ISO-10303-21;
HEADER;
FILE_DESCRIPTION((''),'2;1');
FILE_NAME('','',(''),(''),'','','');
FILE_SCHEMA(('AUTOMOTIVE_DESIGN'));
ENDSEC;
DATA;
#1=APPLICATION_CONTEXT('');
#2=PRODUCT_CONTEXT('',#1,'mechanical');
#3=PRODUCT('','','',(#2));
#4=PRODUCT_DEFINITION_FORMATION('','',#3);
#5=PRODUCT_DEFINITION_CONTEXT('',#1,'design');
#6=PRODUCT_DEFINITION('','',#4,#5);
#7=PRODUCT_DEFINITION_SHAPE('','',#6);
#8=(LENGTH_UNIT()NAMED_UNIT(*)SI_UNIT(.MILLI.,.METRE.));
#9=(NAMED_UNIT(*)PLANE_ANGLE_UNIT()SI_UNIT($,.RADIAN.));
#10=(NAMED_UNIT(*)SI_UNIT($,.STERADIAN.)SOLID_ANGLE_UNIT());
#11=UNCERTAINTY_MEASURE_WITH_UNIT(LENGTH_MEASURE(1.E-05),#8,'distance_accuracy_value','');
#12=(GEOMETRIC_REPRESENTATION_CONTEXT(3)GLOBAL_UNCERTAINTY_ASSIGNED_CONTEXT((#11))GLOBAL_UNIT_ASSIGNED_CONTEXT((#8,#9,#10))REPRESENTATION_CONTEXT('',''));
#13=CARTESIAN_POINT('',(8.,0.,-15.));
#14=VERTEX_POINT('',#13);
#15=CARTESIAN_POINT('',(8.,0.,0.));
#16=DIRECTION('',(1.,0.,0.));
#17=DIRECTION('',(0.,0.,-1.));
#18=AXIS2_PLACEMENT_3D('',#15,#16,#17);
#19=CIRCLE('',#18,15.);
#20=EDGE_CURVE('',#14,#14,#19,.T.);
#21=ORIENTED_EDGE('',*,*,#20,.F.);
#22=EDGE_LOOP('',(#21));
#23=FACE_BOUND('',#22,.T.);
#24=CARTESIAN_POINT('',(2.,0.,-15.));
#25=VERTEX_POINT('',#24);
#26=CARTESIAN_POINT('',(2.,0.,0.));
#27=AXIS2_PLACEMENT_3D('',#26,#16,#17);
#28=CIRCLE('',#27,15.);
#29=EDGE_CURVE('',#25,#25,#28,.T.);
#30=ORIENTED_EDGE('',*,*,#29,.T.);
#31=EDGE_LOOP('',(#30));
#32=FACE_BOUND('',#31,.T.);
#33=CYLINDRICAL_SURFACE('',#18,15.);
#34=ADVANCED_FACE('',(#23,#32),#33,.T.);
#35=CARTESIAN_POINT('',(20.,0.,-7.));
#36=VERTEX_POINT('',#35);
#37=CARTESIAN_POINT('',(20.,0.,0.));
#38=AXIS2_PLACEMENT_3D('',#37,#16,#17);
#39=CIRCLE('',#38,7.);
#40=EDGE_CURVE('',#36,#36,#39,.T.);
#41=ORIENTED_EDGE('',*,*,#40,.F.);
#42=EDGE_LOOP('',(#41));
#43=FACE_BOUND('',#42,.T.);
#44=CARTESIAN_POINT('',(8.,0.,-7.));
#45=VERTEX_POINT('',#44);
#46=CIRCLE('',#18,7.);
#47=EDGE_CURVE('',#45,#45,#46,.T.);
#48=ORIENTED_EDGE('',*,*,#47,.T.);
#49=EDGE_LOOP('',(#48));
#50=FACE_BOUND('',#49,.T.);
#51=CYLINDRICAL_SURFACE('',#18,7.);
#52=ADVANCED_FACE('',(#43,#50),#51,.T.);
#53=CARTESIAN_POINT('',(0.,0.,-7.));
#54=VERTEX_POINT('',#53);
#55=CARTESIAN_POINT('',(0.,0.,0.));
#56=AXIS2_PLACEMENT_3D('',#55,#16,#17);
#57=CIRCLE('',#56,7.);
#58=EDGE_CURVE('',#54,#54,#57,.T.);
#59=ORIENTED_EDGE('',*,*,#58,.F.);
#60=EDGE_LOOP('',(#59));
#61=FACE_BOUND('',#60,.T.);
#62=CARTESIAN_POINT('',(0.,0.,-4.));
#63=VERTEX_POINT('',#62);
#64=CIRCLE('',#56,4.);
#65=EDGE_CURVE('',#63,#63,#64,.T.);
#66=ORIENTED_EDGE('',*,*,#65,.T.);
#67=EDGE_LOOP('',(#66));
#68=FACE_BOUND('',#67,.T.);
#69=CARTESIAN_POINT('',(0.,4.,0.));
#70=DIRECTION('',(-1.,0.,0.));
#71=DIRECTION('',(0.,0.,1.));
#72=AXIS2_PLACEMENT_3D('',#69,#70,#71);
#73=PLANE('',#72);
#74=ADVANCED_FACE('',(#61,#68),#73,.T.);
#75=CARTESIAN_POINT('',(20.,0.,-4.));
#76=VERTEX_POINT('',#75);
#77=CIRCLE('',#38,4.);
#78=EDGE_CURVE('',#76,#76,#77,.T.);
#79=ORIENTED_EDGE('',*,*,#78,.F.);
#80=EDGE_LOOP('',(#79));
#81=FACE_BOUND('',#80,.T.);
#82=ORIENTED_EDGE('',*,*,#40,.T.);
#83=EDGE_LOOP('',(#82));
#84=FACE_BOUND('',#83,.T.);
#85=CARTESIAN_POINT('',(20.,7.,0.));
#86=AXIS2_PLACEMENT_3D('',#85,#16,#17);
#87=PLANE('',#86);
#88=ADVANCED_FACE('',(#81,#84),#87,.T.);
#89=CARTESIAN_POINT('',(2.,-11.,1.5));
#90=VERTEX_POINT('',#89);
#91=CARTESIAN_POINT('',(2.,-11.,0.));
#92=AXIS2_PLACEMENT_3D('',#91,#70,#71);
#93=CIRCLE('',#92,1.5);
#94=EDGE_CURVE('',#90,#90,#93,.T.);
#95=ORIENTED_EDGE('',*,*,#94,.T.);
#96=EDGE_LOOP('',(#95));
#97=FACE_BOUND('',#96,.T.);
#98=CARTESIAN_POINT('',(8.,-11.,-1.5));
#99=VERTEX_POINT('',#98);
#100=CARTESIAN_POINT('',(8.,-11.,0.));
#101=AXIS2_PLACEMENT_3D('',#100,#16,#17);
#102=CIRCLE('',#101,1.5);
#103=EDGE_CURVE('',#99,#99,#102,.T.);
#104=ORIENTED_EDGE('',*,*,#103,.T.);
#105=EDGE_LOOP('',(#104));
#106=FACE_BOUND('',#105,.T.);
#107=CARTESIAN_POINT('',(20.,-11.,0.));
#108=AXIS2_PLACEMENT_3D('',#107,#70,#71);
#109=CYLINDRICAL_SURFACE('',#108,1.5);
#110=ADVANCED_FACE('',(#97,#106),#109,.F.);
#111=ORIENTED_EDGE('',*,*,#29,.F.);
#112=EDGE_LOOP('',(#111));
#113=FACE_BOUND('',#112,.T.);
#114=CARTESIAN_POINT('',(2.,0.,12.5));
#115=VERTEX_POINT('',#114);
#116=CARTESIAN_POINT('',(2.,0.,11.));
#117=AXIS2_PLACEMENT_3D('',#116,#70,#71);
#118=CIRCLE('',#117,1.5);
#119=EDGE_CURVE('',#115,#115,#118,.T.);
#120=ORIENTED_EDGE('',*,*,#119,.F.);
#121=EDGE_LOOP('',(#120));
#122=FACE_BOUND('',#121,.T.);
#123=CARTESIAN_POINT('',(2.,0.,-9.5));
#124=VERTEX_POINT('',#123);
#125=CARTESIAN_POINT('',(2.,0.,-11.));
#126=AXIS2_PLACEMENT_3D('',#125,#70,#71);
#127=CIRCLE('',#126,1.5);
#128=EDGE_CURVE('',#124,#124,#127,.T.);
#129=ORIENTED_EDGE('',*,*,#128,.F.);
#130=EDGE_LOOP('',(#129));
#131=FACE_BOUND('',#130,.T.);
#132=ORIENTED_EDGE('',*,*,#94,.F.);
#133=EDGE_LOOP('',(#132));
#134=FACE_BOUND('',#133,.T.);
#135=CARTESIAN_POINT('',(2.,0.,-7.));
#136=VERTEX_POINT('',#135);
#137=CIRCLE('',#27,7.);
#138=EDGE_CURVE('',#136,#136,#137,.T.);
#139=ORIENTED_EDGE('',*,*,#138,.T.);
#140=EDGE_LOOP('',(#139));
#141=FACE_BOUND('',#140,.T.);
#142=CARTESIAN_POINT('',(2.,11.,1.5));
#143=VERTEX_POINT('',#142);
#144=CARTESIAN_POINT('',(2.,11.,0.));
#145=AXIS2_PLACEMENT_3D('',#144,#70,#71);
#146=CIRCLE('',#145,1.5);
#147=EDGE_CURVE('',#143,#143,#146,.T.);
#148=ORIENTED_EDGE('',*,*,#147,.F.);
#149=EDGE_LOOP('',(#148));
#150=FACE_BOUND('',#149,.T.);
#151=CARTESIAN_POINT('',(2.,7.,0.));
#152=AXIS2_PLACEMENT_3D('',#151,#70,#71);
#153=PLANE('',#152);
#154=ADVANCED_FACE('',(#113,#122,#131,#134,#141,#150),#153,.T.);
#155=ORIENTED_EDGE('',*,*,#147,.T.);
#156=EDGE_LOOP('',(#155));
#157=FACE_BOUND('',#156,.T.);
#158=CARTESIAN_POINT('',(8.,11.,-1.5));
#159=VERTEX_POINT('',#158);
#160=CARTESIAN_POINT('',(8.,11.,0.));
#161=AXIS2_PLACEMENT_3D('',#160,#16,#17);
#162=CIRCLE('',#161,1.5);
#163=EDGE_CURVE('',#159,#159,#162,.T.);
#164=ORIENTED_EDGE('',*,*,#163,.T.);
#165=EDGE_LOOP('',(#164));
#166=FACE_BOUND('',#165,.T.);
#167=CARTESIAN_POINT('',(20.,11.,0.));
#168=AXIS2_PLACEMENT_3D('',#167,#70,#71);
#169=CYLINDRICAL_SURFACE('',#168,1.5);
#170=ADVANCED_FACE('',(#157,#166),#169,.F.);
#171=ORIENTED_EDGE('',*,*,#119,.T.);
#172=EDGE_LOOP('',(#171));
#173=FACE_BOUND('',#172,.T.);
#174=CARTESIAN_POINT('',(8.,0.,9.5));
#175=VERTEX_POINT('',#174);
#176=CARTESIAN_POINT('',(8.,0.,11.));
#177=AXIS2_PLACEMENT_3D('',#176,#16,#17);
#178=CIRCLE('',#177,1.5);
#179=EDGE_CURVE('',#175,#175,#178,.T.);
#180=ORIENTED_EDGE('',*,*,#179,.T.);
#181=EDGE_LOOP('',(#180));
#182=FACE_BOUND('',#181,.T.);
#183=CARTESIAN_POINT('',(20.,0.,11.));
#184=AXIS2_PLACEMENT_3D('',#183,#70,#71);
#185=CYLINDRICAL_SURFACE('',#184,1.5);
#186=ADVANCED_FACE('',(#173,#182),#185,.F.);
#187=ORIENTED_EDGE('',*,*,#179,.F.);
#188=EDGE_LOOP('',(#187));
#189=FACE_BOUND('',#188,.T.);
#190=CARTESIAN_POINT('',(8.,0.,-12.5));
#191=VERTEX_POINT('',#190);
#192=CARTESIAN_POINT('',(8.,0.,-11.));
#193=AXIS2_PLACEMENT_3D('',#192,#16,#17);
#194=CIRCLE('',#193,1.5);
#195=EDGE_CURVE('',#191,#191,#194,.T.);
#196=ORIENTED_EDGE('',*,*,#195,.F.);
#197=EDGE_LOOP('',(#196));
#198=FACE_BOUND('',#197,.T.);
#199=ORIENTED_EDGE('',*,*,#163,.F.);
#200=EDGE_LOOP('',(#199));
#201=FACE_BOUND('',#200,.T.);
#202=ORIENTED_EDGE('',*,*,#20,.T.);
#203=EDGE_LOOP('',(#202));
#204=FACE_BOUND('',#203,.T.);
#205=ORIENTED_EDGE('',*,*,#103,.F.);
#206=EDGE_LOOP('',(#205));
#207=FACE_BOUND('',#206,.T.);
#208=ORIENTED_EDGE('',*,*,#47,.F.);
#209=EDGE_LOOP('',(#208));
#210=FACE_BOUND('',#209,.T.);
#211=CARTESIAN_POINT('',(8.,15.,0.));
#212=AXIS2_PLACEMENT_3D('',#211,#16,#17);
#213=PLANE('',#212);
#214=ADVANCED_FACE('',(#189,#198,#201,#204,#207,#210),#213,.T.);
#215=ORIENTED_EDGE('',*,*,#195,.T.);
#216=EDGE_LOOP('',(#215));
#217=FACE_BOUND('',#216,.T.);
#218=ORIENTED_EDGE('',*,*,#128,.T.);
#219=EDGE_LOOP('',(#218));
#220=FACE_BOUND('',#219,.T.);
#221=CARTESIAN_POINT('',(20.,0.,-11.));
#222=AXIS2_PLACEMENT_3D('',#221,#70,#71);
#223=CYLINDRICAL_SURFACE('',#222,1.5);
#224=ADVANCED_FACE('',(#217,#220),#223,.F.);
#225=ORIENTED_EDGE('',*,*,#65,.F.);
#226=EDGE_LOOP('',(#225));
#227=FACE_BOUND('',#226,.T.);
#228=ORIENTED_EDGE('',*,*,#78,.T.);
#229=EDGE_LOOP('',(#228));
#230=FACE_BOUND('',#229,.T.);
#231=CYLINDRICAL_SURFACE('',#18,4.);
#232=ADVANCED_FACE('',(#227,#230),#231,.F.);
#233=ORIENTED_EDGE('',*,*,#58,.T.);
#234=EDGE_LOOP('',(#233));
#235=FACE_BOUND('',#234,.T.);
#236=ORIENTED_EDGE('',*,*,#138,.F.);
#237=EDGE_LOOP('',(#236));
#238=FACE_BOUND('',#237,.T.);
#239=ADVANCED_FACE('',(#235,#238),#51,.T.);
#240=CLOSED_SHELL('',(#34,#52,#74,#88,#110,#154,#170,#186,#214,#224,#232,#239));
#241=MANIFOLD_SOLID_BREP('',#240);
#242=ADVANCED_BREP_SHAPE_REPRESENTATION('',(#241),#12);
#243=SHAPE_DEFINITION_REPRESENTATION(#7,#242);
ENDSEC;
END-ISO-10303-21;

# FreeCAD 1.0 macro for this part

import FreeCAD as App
import Part
import Sketcher

V = App.Vector
Q = App.Units.Quantity


def add_polygon(sketch, points):
    """Adds a closed chain of lines whose ends are joined by coincident constraints."""
    first, n = sketch.GeometryCount, len(points)
    for a, b in zip(points, points[1:] + points[:1]):
        sketch.addGeometry(Part.LineSegment(App.Vector(*a, 0), App.Vector(*b, 0)), False)
    for i in range(n):
        sketch.addConstraint(Sketcher.Constraint("Coincident", first + i, 2, first + (i + 1) % n, 1))

doc = App.newDocument("Part")
body = doc.addObject("PartDesign::Body", "Body")

# Sketch on XY plane
sketch1 = doc.addObject("Sketcher::SketchObject", "Sketch")
body.addObject(sketch1)
sketch1.AttachmentSupport = (doc.XY_Plane, [""])
sketch1.MapMode = "FlatFace"
add_polygon(sketch1, [(0, 7), (0, 4), (20, 4), (20, 7), (8, 7), (8, 15), (2, 15), (2, 7)])  # lines 0-7
sketch1.addConstraint([
    Sketcher.Constraint("Vertical", 0),
    Sketcher.Constraint("Horizontal", 1),
    Sketcher.Constraint("Vertical", 2),
    Sketcher.Constraint("Horizontal", 3),
    Sketcher.Constraint("Vertical", 4),
    Sketcher.Constraint("Horizontal", 5),
    Sketcher.Constraint("Vertical", 6),
    Sketcher.Constraint("Horizontal", 7),
    Sketcher.Constraint("PointOnObject", 0, 2, -2),
    Sketcher.Constraint("Horizontal", 3, 2, 6, 2),
    Sketcher.Constraint("DistanceX", 1, 1, 1, 2, Q("20 mm")),
    Sketcher.Constraint("DistanceX", 3, 2, 3, 1, Q("12 mm")),
    Sketcher.Constraint("DistanceX", 5, 2, 5, 1, Q("6 mm")),
    Sketcher.Constraint("DistanceY", 0, 2, 0, 1, Q("3 mm")),
    Sketcher.Constraint("DistanceY", 4, 1, 4, 2, Q("8 mm")),
    Sketcher.Constraint("DistanceY", -1, 1, 0, 2, Q("4 mm")),
])
revolution = doc.addObject("PartDesign::Revolution", "Revolution")
body.addObject(revolution)
revolution.Profile = sketch1
revolution.ReferenceAxis = (sketch1, ["H_Axis"])
revolution.Angle = 360

# Sketch on YZ plane
sketch2 = doc.addObject("Sketcher::SketchObject", "Sketch001")
body.addObject(sketch2)
sketch2.AttachmentSupport = (doc.YZ_Plane, [""])
sketch2.MapMode = "FlatFace"
sketch2.AttachmentOffset = App.Placement(V(0, 0, 2), App.Rotation())
sketch2.addGeometry([
    Part.Circle(V(11, 0, 0), V(0, 0, 1), 1.5),
    Part.Circle(V(0, -11, 0), V(0, 0, 1), 1.5),
    Part.Circle(V(-11, 0, 0), V(0, 0, 1), 1.5),
    Part.Circle(V(0, 11, 0), V(0, 0, 1), 1.5),
], False)
sketch2.addConstraint([
    Sketcher.Constraint("Equal", 0, 1),
    Sketcher.Constraint("Equal", 1, 2),
    Sketcher.Constraint("Equal", 2, 3),
    Sketcher.Constraint("Symmetric", 0, 3, 2, 3, -1, 1),
    Sketcher.Constraint("Symmetric", 1, 3, 3, 3, -1, 1),
    Sketcher.Constraint("PointOnObject", 0, 3, -1),
    Sketcher.Constraint("PointOnObject", 1, 3, -2),
    Sketcher.Constraint("Diameter", 0, Q("3 mm")),
    Sketcher.Constraint("DistanceX", -1, 1, 0, 3, Q("11 mm")),
    Sketcher.Constraint("DistanceY", 1, 3, -1, 1, Q("11 mm")),
])
pocket1 = doc.addObject("PartDesign::Pocket", "Pocket")
body.addObject(pocket1)
pocket1.Profile = sketch2
pocket1.Type = "ThroughAll"
pocket1.Reversed = True

doc.recompute()
